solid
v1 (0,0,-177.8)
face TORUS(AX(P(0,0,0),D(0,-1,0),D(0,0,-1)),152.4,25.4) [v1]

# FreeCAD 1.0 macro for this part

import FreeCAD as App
import Part
import Sketcher
from FreeCAD import Vector
Q = App.Units.Quantity

doc = App.newDocument("Part")
body = doc.addObject("PartDesign::Body", "Body")

# Sketch on XY plane
sketch1 = body.newObject("Sketcher::SketchObject", "Sketch")
sketch1.AttachmentSupport = (doc.getObject("XY_Plane"), [""])
sketch1.MapMode = "FlatFace"
sketch1.addGeometry(Part.Circle(Vector(152, 0, 0), Vector(0, 0, 1), 25), False)
sketch1.addConstraint(Sketcher.Constraint("PointOnObject", 0, 3, -1))
sketch1.addConstraint(Sketcher.Constraint("Diameter", 0, Q("2 in")))
sketch1.addConstraint(Sketcher.Constraint("DistanceX", -1, 1, 0, 3, Q("6 in")))
revolution = body.newObject("PartDesign::Revolution", "Revolution")
revolution.Profile = sketch1
revolution.ReferenceAxis = (sketch1, ["V_Axis"])
revolution.Angle = 360

doc.recompute()
